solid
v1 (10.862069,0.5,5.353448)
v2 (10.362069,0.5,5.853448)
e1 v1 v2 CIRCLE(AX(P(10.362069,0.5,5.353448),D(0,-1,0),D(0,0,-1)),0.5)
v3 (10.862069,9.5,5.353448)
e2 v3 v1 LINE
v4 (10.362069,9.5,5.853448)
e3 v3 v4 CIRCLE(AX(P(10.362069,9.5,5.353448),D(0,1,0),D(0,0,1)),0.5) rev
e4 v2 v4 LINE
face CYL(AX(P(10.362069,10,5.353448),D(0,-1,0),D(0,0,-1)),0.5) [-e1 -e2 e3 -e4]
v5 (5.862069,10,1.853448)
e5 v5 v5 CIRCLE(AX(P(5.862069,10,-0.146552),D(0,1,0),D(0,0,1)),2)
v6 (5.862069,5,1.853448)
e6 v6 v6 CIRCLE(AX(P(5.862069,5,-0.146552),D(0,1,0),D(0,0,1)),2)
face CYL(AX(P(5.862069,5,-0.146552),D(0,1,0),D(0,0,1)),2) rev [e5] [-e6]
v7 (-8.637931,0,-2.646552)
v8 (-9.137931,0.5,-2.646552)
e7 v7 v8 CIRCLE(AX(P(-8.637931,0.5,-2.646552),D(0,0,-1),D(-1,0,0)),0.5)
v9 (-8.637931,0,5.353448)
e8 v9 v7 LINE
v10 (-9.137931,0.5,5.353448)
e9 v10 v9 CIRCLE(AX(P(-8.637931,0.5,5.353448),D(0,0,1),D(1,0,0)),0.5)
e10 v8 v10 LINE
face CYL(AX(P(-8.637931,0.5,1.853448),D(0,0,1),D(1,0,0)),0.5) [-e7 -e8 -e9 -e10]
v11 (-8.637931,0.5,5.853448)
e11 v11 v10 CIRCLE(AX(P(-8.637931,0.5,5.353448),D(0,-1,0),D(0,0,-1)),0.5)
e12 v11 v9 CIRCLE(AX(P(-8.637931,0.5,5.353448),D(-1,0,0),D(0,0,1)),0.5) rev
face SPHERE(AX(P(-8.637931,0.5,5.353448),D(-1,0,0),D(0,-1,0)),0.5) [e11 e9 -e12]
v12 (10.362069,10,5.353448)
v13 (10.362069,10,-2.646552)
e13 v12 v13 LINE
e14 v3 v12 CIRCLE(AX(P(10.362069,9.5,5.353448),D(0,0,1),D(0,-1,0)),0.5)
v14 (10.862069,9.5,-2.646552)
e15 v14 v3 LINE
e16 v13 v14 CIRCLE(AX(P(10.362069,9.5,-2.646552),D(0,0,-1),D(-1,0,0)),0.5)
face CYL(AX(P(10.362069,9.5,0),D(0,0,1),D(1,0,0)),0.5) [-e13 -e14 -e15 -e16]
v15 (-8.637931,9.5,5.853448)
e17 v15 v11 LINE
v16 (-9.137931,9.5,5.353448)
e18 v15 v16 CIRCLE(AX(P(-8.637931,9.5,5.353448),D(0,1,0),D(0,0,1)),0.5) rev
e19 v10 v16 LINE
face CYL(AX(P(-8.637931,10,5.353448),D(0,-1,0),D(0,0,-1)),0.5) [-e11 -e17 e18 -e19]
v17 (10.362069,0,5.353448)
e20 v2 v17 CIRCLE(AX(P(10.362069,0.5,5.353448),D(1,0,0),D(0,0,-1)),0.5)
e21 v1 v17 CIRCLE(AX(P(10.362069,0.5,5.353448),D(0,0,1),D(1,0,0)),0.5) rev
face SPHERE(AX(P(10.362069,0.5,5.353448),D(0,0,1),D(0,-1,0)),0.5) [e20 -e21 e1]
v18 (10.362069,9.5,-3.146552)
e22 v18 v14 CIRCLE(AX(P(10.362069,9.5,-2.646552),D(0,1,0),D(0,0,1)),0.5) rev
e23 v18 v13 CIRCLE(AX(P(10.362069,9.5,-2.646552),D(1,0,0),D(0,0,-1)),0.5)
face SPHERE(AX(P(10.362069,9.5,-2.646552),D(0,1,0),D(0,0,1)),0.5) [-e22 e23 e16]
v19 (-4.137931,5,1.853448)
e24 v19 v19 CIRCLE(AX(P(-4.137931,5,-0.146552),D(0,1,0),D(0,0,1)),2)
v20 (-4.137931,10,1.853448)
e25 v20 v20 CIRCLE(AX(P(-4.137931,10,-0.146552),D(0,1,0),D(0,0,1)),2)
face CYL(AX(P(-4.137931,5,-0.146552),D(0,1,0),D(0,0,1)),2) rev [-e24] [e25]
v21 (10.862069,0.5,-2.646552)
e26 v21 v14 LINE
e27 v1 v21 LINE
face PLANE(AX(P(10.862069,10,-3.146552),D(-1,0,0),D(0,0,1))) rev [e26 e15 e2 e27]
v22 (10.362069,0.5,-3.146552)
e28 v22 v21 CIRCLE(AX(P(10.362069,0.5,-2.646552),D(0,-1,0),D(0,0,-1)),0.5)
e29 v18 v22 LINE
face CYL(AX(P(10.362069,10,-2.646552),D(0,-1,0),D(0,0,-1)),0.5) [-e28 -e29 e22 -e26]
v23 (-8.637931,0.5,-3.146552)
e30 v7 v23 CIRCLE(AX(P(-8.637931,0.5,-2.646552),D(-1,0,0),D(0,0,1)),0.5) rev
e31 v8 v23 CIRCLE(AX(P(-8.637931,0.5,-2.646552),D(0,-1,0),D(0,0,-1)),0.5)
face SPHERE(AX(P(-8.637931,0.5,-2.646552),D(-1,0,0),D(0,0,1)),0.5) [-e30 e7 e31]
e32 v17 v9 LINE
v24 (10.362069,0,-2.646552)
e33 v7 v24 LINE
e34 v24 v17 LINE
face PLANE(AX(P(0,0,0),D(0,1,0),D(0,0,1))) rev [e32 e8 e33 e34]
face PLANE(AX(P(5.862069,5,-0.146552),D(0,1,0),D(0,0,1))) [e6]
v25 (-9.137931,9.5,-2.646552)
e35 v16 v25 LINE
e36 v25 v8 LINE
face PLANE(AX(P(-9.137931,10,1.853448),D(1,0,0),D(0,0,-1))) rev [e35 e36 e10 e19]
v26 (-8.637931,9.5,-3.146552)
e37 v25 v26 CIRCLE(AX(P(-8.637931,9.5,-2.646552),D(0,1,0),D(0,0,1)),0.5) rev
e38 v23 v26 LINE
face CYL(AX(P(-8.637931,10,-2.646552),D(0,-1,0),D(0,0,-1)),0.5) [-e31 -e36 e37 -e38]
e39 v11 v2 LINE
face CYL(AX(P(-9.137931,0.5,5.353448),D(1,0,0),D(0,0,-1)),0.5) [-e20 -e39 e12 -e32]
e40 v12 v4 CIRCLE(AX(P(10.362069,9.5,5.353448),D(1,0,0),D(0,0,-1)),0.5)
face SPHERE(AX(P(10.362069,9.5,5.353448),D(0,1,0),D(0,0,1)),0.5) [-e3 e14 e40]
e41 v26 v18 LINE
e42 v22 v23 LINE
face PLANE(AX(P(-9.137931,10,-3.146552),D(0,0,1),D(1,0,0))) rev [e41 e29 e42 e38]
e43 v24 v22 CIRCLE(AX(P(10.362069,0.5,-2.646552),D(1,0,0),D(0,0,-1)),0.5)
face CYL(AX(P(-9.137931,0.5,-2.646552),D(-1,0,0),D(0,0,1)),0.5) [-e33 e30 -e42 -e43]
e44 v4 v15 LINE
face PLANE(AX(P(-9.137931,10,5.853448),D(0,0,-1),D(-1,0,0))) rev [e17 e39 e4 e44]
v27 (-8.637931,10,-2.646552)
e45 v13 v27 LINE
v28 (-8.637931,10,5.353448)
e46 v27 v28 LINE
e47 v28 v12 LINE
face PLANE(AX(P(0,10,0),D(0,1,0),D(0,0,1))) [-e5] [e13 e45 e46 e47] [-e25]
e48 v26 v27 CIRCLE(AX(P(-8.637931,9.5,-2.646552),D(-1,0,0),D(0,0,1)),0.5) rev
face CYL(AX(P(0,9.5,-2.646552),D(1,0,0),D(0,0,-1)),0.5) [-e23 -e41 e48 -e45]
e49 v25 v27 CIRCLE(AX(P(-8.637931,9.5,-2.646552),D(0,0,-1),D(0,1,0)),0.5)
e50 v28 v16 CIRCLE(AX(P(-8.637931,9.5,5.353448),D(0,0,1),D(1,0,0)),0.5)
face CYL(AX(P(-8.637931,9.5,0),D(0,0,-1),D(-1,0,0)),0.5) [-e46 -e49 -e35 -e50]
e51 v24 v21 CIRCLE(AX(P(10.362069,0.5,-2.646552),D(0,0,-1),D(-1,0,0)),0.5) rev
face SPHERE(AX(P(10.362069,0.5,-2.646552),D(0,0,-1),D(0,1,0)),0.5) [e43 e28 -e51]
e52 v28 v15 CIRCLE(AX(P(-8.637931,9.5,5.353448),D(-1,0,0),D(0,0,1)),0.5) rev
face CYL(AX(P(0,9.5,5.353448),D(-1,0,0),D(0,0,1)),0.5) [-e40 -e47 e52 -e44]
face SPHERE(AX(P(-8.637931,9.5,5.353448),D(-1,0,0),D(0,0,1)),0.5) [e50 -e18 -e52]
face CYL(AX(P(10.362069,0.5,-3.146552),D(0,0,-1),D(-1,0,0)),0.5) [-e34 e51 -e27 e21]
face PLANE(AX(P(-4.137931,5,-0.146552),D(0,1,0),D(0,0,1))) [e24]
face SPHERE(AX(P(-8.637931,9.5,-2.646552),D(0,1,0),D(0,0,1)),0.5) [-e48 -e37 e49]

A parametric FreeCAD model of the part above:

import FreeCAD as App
import Part
import Sketcher
Q = App.Units.Quantity


def edges_at(feature, points):
    """Names of the edges that pass closest to the given points."""
    edges = feature.Shape.Edges
    near = lambda p: min(range(len(edges)), key=lambda i: edges[i].distToShape(Part.Vertex(*p))[0])
    return sorted({f"Edge{near(p) + 1}" for p in points})

doc = App.newDocument("Part")
body = doc.addObject("PartDesign::Body", "Body")

# Sketch on XZ plane
sketch1 = body.newObject("Sketcher::SketchObject", "Sketch")
sketch1.AttachmentSupport = (doc.getObject("XZ_Plane"), [""])
sketch1.MapMode = "FlatFace"
sketch1.addGeometry(Part.LineSegment(App.Vector(11, -3, 0), App.Vector(-9, -3, 0)), False)
sketch1.addGeometry(Part.LineSegment(App.Vector(-9, -3, 0), App.Vector(-9, 6, 0)), False)
sketch1.addGeometry(Part.LineSegment(App.Vector(-9, 6, 0), App.Vector(11, 6, 0)), False)
sketch1.addGeometry(Part.LineSegment(App.Vector(11, 6, 0), App.Vector(11, -3, 0)), False)
sketch1.addConstraint(Sketcher.Constraint("Coincident", 0, 2, 1, 1))
sketch1.addConstraint(Sketcher.Constraint("Coincident", 1, 2, 2, 1))
sketch1.addConstraint(Sketcher.Constraint("Coincident", 2, 2, 3, 1))
sketch1.addConstraint(Sketcher.Constraint("Coincident", 3, 2, 0, 1))
sketch1.addConstraint(Sketcher.Constraint("Horizontal", 0))
sketch1.addConstraint(Sketcher.Constraint("Vertical", 1))
sketch1.addConstraint(Sketcher.Constraint("Horizontal", 2))
sketch1.addConstraint(Sketcher.Constraint("Vertical", 3))
sketch1.addConstraint(Sketcher.Constraint("DistanceX", 0, 2, 0, 1, Q("20 mm")))
sketch1.addConstraint(Sketcher.Constraint("DistanceY", 1, 1, 1, 2, Q("9 mm")))
sketch1.addConstraint(Sketcher.Constraint("DistanceX", 0, 2, -1, 1, Q("9.137931 mm")))
sketch1.addConstraint(Sketcher.Constraint("DistanceY", 0, 2, -1, 1, Q("3.146552 mm")))
pad1 = body.newObject("PartDesign::Pad", "Pad")
pad1.Profile = sketch1
pad1.Length = 10
pad1.Reversed = True

# Sketch on XZ plane
sketch2 = body.newObject("Sketcher::SketchObject", "Sketch001")
sketch2.AttachmentSupport = (doc.getObject("XZ_Plane"), [""])
sketch2.MapMode = "FlatFace"
sketch2.AttachmentOffset = App.Placement(App.Vector(0, 0, -10), App.Rotation())
sketch2.addGeometry(Part.Circle(App.Vector(-4.1, -0.1, 0), App.Vector(0, 0, 1), 2), False)
sketch2.addGeometry(Part.Circle(App.Vector(5.9, -0.1, 0), App.Vector(0, 0, 1), 2), False)
sketch2.addConstraint(Sketcher.Constraint("Equal", 0, 1))
sketch2.addConstraint(Sketcher.Constraint("Horizontal", 0, 3, 1, 3))
sketch2.addConstraint(Sketcher.Constraint("Diameter", 0, Q("4 mm")))
sketch2.addConstraint(Sketcher.Constraint("DistanceX", 0, 3, 1, 3, Q("10 mm")))
sketch2.addConstraint(Sketcher.Constraint("DistanceX", 0, 3, -1, 1, Q("4.137931 mm")))
sketch2.addConstraint(Sketcher.Constraint("DistanceY", 0, 3, -1, 1, Q("0.146552 mm")))
pocket1 = body.newObject("PartDesign::Pocket", "Pocket")
pocket1.Profile = sketch2
pocket1.Length = 5
pocket1.Reversed = True
doc.recompute()

fillet = body.newObject("PartDesign::Fillet", "Fillet")
fillet.Base = (pocket1, edges_at(pocket1, [
    (-9.138, 5, -3.147),
    (10.862, 5, -3.147),
    (10.862, 5, 5.853),
    (-9.138, 5, 5.853),
    (0.862, 10, 5.853),
    (10.862, 10, 1.353),
    (0.862, 10, -3.147),
    (-9.138, 10, 1.353),
    (0.862, 0, -3.147),
    (10.862, 0, 1.353),
    (0.862, 0, 5.853),
    (-9.138, 0, 1.353),
]))
fillet.Radius = 0.5

doc.recompute()
